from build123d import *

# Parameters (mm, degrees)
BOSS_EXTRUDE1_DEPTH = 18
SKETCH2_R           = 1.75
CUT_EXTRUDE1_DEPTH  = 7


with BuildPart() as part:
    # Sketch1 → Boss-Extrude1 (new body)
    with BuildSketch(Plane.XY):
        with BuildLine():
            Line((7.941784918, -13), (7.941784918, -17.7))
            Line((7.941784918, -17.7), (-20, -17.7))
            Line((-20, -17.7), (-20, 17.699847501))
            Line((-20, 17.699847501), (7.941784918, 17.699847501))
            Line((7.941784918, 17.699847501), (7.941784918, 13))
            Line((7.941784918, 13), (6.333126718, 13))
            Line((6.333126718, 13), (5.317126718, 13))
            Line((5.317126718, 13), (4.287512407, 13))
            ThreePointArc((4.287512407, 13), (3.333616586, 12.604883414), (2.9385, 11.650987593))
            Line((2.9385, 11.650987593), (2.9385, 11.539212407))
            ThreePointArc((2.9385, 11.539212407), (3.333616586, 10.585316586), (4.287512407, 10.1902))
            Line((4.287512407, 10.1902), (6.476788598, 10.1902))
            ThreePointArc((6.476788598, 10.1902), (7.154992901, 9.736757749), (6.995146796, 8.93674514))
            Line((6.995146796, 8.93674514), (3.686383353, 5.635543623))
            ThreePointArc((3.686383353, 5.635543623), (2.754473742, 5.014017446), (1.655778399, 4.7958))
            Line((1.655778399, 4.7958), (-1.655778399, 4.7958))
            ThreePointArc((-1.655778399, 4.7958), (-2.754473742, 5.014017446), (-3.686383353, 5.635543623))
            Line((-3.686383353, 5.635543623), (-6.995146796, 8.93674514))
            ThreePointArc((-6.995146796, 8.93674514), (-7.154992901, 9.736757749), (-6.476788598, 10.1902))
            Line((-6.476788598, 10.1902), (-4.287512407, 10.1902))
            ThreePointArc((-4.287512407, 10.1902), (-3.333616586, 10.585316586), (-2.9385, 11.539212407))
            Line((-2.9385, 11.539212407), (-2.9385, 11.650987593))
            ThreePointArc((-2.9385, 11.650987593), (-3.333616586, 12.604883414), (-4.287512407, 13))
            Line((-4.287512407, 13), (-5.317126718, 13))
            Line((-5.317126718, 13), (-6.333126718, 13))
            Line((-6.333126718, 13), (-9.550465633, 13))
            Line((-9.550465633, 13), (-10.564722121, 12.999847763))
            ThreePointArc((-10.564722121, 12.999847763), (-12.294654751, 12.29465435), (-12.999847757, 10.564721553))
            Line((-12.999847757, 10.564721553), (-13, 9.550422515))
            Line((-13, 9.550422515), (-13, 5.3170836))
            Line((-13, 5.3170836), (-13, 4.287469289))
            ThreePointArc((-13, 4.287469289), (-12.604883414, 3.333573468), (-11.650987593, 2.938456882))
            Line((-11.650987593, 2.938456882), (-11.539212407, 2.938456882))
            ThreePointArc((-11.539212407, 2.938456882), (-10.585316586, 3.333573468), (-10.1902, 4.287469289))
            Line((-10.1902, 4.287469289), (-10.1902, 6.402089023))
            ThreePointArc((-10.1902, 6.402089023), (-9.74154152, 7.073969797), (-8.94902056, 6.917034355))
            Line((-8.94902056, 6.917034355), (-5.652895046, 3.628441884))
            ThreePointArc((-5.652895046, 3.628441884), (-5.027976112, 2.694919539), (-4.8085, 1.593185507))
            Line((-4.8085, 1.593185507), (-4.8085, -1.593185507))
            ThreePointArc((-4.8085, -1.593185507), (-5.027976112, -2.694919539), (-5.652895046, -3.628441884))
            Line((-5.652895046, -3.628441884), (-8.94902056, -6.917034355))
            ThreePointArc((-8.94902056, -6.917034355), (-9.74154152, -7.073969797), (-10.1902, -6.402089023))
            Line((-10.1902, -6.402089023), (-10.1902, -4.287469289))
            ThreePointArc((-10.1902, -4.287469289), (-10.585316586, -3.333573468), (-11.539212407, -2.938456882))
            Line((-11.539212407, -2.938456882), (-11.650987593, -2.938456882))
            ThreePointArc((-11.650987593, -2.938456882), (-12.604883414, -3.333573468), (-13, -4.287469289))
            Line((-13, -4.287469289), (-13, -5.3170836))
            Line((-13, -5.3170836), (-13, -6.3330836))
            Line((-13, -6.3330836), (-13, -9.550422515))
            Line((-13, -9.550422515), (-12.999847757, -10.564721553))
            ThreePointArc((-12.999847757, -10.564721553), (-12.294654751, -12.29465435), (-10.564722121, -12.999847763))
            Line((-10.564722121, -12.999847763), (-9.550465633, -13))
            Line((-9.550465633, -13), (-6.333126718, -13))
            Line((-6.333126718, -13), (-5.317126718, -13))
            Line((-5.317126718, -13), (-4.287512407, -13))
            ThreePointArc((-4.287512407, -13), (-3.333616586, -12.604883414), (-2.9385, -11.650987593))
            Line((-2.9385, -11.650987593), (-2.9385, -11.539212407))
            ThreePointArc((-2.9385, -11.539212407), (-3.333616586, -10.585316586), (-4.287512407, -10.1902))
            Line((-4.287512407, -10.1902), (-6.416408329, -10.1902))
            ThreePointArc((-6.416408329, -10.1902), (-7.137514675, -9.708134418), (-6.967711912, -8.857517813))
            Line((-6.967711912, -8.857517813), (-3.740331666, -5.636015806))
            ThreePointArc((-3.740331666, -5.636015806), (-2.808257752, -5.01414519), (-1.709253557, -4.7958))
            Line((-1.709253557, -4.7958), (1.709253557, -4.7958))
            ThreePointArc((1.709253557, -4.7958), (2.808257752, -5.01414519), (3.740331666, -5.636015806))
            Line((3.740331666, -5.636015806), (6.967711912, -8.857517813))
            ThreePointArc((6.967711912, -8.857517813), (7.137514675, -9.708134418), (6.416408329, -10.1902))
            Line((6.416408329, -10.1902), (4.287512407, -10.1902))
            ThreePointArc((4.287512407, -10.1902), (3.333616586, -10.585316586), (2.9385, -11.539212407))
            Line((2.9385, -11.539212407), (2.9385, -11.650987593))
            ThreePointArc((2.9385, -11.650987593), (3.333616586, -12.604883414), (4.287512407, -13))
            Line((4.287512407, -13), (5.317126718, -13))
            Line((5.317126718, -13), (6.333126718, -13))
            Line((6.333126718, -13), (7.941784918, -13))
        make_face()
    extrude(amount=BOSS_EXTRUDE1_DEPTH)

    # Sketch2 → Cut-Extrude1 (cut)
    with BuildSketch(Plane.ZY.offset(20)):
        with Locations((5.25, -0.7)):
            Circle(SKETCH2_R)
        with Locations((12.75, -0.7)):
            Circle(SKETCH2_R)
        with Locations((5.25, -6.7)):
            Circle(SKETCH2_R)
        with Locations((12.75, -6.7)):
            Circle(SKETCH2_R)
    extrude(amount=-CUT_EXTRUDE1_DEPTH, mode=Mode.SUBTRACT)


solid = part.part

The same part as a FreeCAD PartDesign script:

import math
import FreeCAD as App
import Part
import Sketcher

V = App.Vector
Q = App.Units.Quantity

doc = App.newDocument("Part")
params = doc.addObject("Spreadsheet::Sheet", "Params")
for row, (alias, value) in enumerate([
    ("sketch1_height", "4.7 mm"),
    ("pad1_length", "18 mm"),
    ("sketch2_diameter", "3.5 mm"),
    ("pocket1_length", "7 mm"),
], start=1):
    params.set(f"A{row}", alias)
    params.set(f"B{row}", "=" + value)
    params.setAlias(f"B{row}", alias)

body = doc.addObject("PartDesign::Body", "Body")

sketch1 = body.newObject("Sketcher::SketchObject", "Sketch")
sketch1.AttachmentSupport = (doc.getObject("XY_Plane"), [""])
sketch1.MapMode = "FlatFace"
sketch1.addGeometry([
    Part.LineSegment(V(7.941785, -17.7, 0), V(7.941785, -13, 0)),
    Part.LineSegment(V(7.941785, -13, 0), V(4.287512, -13, 0)),
    Part.ArcOfCircle(Part.Circle(V(4.287512, -11.650988, 0), V(0, 0, 1), 1.349012), math.radians(180), math.radians(270)),
    Part.LineSegment(V(2.9385, -11.650988, 0), V(2.9385, -11.539212, 0)),
    Part.ArcOfCircle(Part.Circle(V(4.287512, -11.539212, 0), V(0, 0, 1), 1.349012), math.radians(90), math.radians(180)),
    Part.LineSegment(V(4.287512, -10.1902, 0), V(6.416408, -10.1902, 0)),
    Part.ArcOfCircle(Part.Circle(V(6.416408, -9.409827, 0), V(0, 0, 1), 0.780373), math.radians(-90), math.radians(45.052226)),
    Part.LineSegment(V(6.967712, -8.857518, 0), V(3.740332, -5.636016, 0)),
    Part.ArcOfCircle(Part.Circle(V(1.709254, -7.6708, 0), V(0, 0, 1), 2.875), math.radians(45.052226), math.radians(90)),
    Part.LineSegment(V(1.709254, -4.7958, 0), V(-1.709254, -4.7958, 0)),
    Part.ArcOfCircle(Part.Circle(V(-1.709254, -7.6708, 0), V(0, 0, 1), 2.875), math.radians(90), math.radians(134.947774)),
    Part.LineSegment(V(-3.740332, -5.636016, 0), V(-6.967712, -8.857518, 0)),
    Part.ArcOfCircle(Part.Circle(V(-6.416408, -9.409827, 0), V(0, 0, 1), 0.780373), math.radians(134.947774), math.radians(270)),
    Part.LineSegment(V(-6.416408, -10.1902, 0), V(-4.287512, -10.1902, 0)),
    Part.ArcOfCircle(Part.Circle(V(-4.287512, -11.539212, 0), V(0, 0, 1), 1.349012), math.radians(0), math.radians(90)),
    Part.LineSegment(V(-2.9385, -11.539212, 0), V(-2.9385, -11.650988, 0)),
    Part.ArcOfCircle(Part.Circle(V(-4.287512, -11.650988, 0), V(0, 0, 1), 1.349012), math.radians(-90), math.radians(0)),
    Part.LineSegment(V(-4.287512, -13, 0), V(-9.550466, -13, 0)),
    Part.LineSegment(V(-9.550466, -13, 0), V(-10.564722, -12.999848, 0)),
    Part.ArcOfCircle(Part.Circle(V(-10.5918, -10.5918, 0), V(0, 0, 1), 2.4082), math.radians(179.355737), math.radians(270.644249)),
    Part.LineSegment(V(-12.999848, -10.564722, 0), V(-13, -9.550423, 0)),
    Part.LineSegment(V(-13, -9.550423, 0), V(-13, -4.287469, 0)),
    Part.ArcOfCircle(Part.Circle(V(-11.650988, -4.287469, 0), V(0, 0, 1), 1.349012), math.radians(90), math.radians(180)),
    Part.LineSegment(V(-11.650988, -2.938457, 0), V(-11.539212, -2.938457, 0)),
    Part.ArcOfCircle(Part.Circle(V(-11.539212, -4.287469, 0), V(0, 0, 1), 1.349012), math.radians(0), math.radians(90)),
    Part.LineSegment(V(-10.1902, -4.287469, 0), V(-10.1902, -6.402089, 0)),
    Part.ArcOfCircle(Part.Circle(V(-9.462789, -6.402089, 0), V(0, 0, 1), 0.727411), math.radians(180), math.radians(314.934453)),
    Part.LineSegment(V(-8.949021, -6.917034, 0), V(-5.652895, -3.628442, 0)),
    Part.ArcOfCircle(Part.Circle(V(-7.6835, -1.593186, 0), V(0, 0, 1), 2.875), math.radians(-45.065547), math.radians(0)),
    Part.LineSegment(V(-4.8085, -1.593186, 0), V(-4.8085, 1.593186, 0)),
    Part.ArcOfCircle(Part.Circle(V(-7.6835, 1.593186, 0), V(0, 0, 1), 2.875), math.radians(0), math.radians(45.065547)),
    Part.LineSegment(V(-5.652895, 3.628442, 0), V(-8.949021, 6.917034, 0)),
    Part.ArcOfCircle(Part.Circle(V(-9.462789, 6.402089, 0), V(0, 0, 1), 0.727411), math.radians(45.065547), math.radians(180)),
    Part.LineSegment(V(-10.1902, 6.402089, 0), V(-10.1902, 4.287469, 0)),
    Part.ArcOfCircle(Part.Circle(V(-11.539212, 4.287469, 0), V(0, 0, 1), 1.349012), math.radians(-90), math.radians(0)),
    Part.LineSegment(V(-11.539212, 2.938457, 0), V(-11.650988, 2.938457, 0)),
    Part.ArcOfCircle(Part.Circle(V(-11.650988, 4.287469, 0), V(0, 0, 1), 1.349012), math.radians(180), math.radians(270)),
    Part.LineSegment(V(-13, 4.287469, 0), V(-13, 9.550423, 0)),
    Part.LineSegment(V(-13, 9.550423, 0), V(-12.999848, 10.564722, 0)),
    Part.ArcOfCircle(Part.Circle(V(-10.5918, 10.5918, 0), V(0, 0, 1), 2.4082), math.radians(89.355751), math.radians(180.644263)),
    Part.LineSegment(V(-10.564722, 12.999848, 0), V(-9.550466, 13, 0)),
    Part.LineSegment(V(-9.550466, 13, 0), V(-4.287512, 13, 0)),
    Part.ArcOfCircle(Part.Circle(V(-4.287512, 11.650988, 0), V(0, 0, 1), 1.349012), math.radians(0), math.radians(90)),
    Part.LineSegment(V(-2.9385, 11.650988, 0), V(-2.9385, 11.539212, 0)),
    Part.ArcOfCircle(Part.Circle(V(-4.287512, 11.539212, 0), V(0, 0, 1), 1.349012), math.radians(-90), math.radians(0)),
    Part.LineSegment(V(-4.287512, 10.1902, 0), V(-6.476789, 10.1902, 0)),
    Part.ArcOfCircle(Part.Circle(V(-6.476789, 9.456291, 0), V(0, 0, 1), 0.733909), math.radians(90), math.radians(225.065547)),
    Part.LineSegment(V(-6.995147, 8.936745, 0), V(-3.686383, 5.635544, 0)),
    Part.ArcOfCircle(Part.Circle(V(-1.655778, 7.6708, 0), V(0, 0, 1), 2.875), math.radians(-134.934452), math.radians(-90)),
    Part.LineSegment(V(-1.655778, 4.7958, 0), V(1.655778, 4.7958, 0)),
    Part.ArcOfCircle(Part.Circle(V(1.655778, 7.6708, 0), V(0, 0, 1), 2.875), math.radians(-90), math.radians(-45.065548)),
    Part.LineSegment(V(3.686383, 5.635544, 0), V(6.995147, 8.936745, 0)),
    Part.ArcOfCircle(Part.Circle(V(6.476789, 9.456291, 0), V(0, 0, 1), 0.733909), math.radians(-45.065547), math.radians(90)),
    Part.LineSegment(V(6.476789, 10.1902, 0), V(4.287512, 10.1902, 0)),
    Part.ArcOfCircle(Part.Circle(V(4.287512, 11.539212, 0), V(0, 0, 1), 1.349012), math.radians(180), math.radians(270)),
    Part.LineSegment(V(2.9385, 11.539212, 0), V(2.9385, 11.650988, 0)),
    Part.ArcOfCircle(Part.Circle(V(4.287512, 11.650988, 0), V(0, 0, 1), 1.349012), math.radians(90), math.radians(180)),
    Part.LineSegment(V(4.287512, 13, 0), V(7.941785, 13, 0)),
    Part.LineSegment(V(7.941785, 13, 0), V(7.941785, 17.699848, 0)),
    Part.LineSegment(V(7.941785, 17.699848, 0), V(-20, 17.699848, 0)),
    Part.LineSegment(V(-20, 17.699848, 0), V(-20, -17.7, 0)),
    Part.LineSegment(V(-20, -17.7, 0), V(7.941785, -17.7, 0)),
], False)
sketch1.addConstraint([
    Sketcher.Constraint("Coincident", 0, 2, 1, 1),
    Sketcher.Constraint("Tangent", 1, 2, 2, 2),
    Sketcher.Constraint("Tangent", 2, 1, 3, 1),
    Sketcher.Constraint("Tangent", 3, 2, 4, 2),
    Sketcher.Constraint("Tangent", 4, 1, 5, 1),
    Sketcher.Constraint("Tangent", 5, 2, 6, 1),
    Sketcher.Constraint("Tangent", 6, 2, 7, 1),
    Sketcher.Constraint("Tangent", 7, 2, 8, 1),
    Sketcher.Constraint("Tangent", 8, 2, 9, 1),
    Sketcher.Constraint("Tangent", 9, 2, 10, 1),
    Sketcher.Constraint("Tangent", 10, 2, 11, 1),
    Sketcher.Constraint("Tangent", 11, 2, 12, 1),
    Sketcher.Constraint("Tangent", 12, 2, 13, 1),
    Sketcher.Constraint("Tangent", 13, 2, 14, 2),
    Sketcher.Constraint("Tangent", 14, 1, 15, 1),
    Sketcher.Constraint("Tangent", 15, 2, 16, 2),
    Sketcher.Constraint("Tangent", 16, 1, 17, 1),
    Sketcher.Constraint("Coincident", 17, 2, 18, 1),
    Sketcher.Constraint("Coincident", 18, 2, 19, 2),
    Sketcher.Constraint("Coincident", 19, 1, 20, 1),
    Sketcher.Constraint("Coincident", 20, 2, 21, 1),
    Sketcher.Constraint("Tangent", 21, 2, 22, 2),
    Sketcher.Constraint("Tangent", 22, 1, 23, 1),
    Sketcher.Constraint("Tangent", 23, 2, 24, 2),
    Sketcher.Constraint("Tangent", 24, 1, 25, 1),
    Sketcher.Constraint("Tangent", 25, 2, 26, 1),
    Sketcher.Constraint("Tangent", 26, 2, 27, 1),
    Sketcher.Constraint("Tangent", 27, 2, 28, 1),
    Sketcher.Constraint("Tangent", 28, 2, 29, 1),
    Sketcher.Constraint("Tangent", 29, 2, 30, 1),
    Sketcher.Constraint("Tangent", 30, 2, 31, 1),
    Sketcher.Constraint("Tangent", 31, 2, 32, 1),
    Sketcher.Constraint("Tangent", 32, 2, 33, 1),
    Sketcher.Constraint("Tangent", 33, 2, 34, 2),
    Sketcher.Constraint("Tangent", 34, 1, 35, 1),
    Sketcher.Constraint("Tangent", 35, 2, 36, 2),
    Sketcher.Constraint("Tangent", 36, 1, 37, 1),
    Sketcher.Constraint("Coincident", 37, 2, 38, 1),
    Sketcher.Constraint("Coincident", 38, 2, 39, 2),
    Sketcher.Constraint("Coincident", 39, 1, 40, 1),
    Sketcher.Constraint("Coincident", 40, 2, 41, 1),
    Sketcher.Constraint("Tangent", 41, 2, 42, 2),
    Sketcher.Constraint("Tangent", 42, 1, 43, 1),
    Sketcher.Constraint("Tangent", 43, 2, 44, 2),
    Sketcher.Constraint("Tangent", 44, 1, 45, 1),
    Sketcher.Constraint("Tangent", 45, 2, 46, 1),
    Sketcher.Constraint("Tangent", 46, 2, 47, 1),
    Sketcher.Constraint("Tangent", 47, 2, 48, 1),
    Sketcher.Constraint("Tangent", 48, 2, 49, 1),
    Sketcher.Constraint("Tangent", 49, 2, 50, 1),
    Sketcher.Constraint("Tangent", 50, 2, 51, 1),
    Sketcher.Constraint("Tangent", 51, 2, 52, 1),
    Sketcher.Constraint("Tangent", 52, 2, 53, 1),
    Sketcher.Constraint("Tangent", 53, 2, 54, 2),
    Sketcher.Constraint("Tangent", 54, 1, 55, 1),
    Sketcher.Constraint("Tangent", 55, 2, 56, 2),
    Sketcher.Constraint("Tangent", 56, 1, 57, 1),
    Sketcher.Constraint("Coincident", 57, 2, 58, 1),
    Sketcher.Constraint("Coincident", 58, 2, 59, 1),
    Sketcher.Constraint("Coincident", 59, 2, 60, 1),
    Sketcher.Constraint("Coincident", 60, 2, 61, 1),
    Sketcher.Constraint("Coincident", 61, 2, 0, 1),
    Sketcher.Constraint("Vertical", 0),
    Sketcher.Constraint("Horizontal", 1),
    Sketcher.Constraint("Vertical", 3),
    Sketcher.Constraint("Horizontal", 5),
    Sketcher.Constraint("Horizontal", 9),
    Sketcher.Constraint("Horizontal", 13),
    Sketcher.Constraint("Vertical", 15),
    Sketcher.Constraint("Horizontal", 17),
    Sketcher.Constraint("Vertical", 21),
    Sketcher.Constraint("Horizontal", 23),
    Sketcher.Constraint("Vertical", 25),
    Sketcher.Constraint("Vertical", 29),
    Sketcher.Constraint("Vertical", 33),
    Sketcher.Constraint("Horizontal", 35),
    Sketcher.Constraint("Vertical", 37),
    Sketcher.Constraint("Horizontal", 41),
    Sketcher.Constraint("Vertical", 43),
    Sketcher.Constraint("Horizontal", 45),
    Sketcher.Constraint("Horizontal", 49),
    Sketcher.Constraint("Horizontal", 53),
    Sketcher.Constraint("Vertical", 55),
    Sketcher.Constraint("Horizontal", 57),
    Sketcher.Constraint("Vertical", 58),
    Sketcher.Constraint("Horizontal", 59),
    Sketcher.Constraint("Vertical", 60),
    Sketcher.Constraint("Horizontal", 61),
    Sketcher.Constraint("Equal", 2, 4),
    Sketcher.Constraint("Equal", 8, 10),
    Sketcher.Constraint("Equal", 6, 12),
    Sketcher.Constraint("Equal", 4, 14),
    Sketcher.Constraint("Equal", 14, 16),
    Sketcher.Constraint("Equal", 16, 22),
    Sketcher.Constraint("Equal", 22, 24),
    Sketcher.Constraint("Equal", 10, 28),
    Sketcher.Constraint("Equal", 28, 30),
    Sketcher.Constraint("Equal", 26, 32),
    Sketcher.Constraint("Equal", 24, 34),
    Sketcher.Constraint("Equal", 34, 36),
    Sketcher.Constraint("Equal", 19, 39),
    Sketcher.Constraint("Equal", 36, 42),
    Sketcher.Constraint("Equal", 42, 44),
    Sketcher.Constraint("Equal", 30, 48),
    Sketcher.Constraint("Equal", 48, 50),
    Sketcher.Constraint("Equal", 46, 52),
    Sketcher.Constraint("Equal", 44, 54),
    Sketcher.Constraint("Equal", 54, 56),
    Sketcher.Constraint("Symmetric", 2, 3, 42, 3, -1, 1),
    Sketcher.Constraint("Symmetric", 14, 3, 54, 3, -1, 1),
    Sketcher.Constraint("Symmetric", 6, 3, 12, 3, -2),
    Sketcher.Constraint("Symmetric", 2, 3, 16, 3, -2),
    Sketcher.Constraint("Symmetric", 46, 3, 52, 3, -2),
    Sketcher.Constraint("Symmetric", 26, 3, 32, 3, -1),
    Sketcher.Constraint("Symmetric", 22, 3, 36, 3, -1),
    Sketcher.Constraint("Symmetric", 19, 3, 39, 3, -1),
    Sketcher.Constraint("Symmetric", 0, 2, 57, 2, -1),
    Sketcher.Constraint("Perpendicular", 18, 38),
    Sketcher.Constraint("Perpendicular", 20, 40),
    Sketcher.Constraint("Parallel", 31, 47),
    Sketcher.Constraint("Parallel", 27, 51),
    Sketcher.Constraint("Horizontal", 7, 2, 10, 2),
    Sketcher.Constraint("Horizontal", 47, 2, 50, 2),
    Sketcher.Constraint("Vertical", 19, 1, 38, 2),
    Sketcher.Constraint("Vertical", 18, 2, 39, 1),
    Sketcher.Constraint("Vertical", 17, 2, 40, 2),
    Sketcher.Constraint("Equal", 35, 3),
    Sketcher.Constraint("Equal", 41, 21),
    Sketcher.Constraint("DistanceY", 0, 1, 0, 2, Q("4.7 mm")),
    Sketcher.Constraint("DistanceY", 0, 2, -1, 1, Q("13 mm")),
    Sketcher.Constraint("DistanceX", 20, 2, -1, 1, Q("13 mm")),
    Sketcher.Constraint("DistanceX", 59, 2, -1, 1, Q("20 mm")),
    Sketcher.Constraint("Radius", 8, Q("2.875 mm")),
    Sketcher.Constraint("Radius", 19, Q("2.4082 mm")),
    Sketcher.Constraint("Radius", 26, Q("0.727411 mm")),
    Sketcher.Constraint("Radius", 46, Q("0.733909 mm")),
    Sketcher.Constraint("Radius", 2, Q("1.349012 mm")),
    Sketcher.Constraint("Radius", 6, Q("0.780373 mm")),
    Sketcher.Constraint("Distance", 20, Q("1.014299 mm")),
    Sketcher.Constraint("Distance", 27, Q("4.656102 mm")),
    Sketcher.Constraint("DistanceY", 25, 2, 25, 1, Q("2.11462 mm")),
    Sketcher.Constraint("DistanceY", 29, 1, 29, 2, Q("3.186371 mm")),
    Sketcher.Constraint("DistanceY", 8, 3, -1, 1, Q("7.6708 mm")),
    Sketcher.Constraint("DistanceX", 19, 3, -1, 1, Q("10.5918 mm")),
    Sketcher.Constraint("DistanceY", 19, 3, -1, 1, Q("10.5918 mm")),
    Sketcher.Constraint("DistanceX", 28, 3, -1, 1, Q("7.6835 mm")),
    Sketcher.Constraint("DistanceY", -1, 1, 48, 3, Q("7.6708 mm")),
    Sketcher.Constraint("DistanceX", -1, 1, 2, 1, Q("2.9385 mm")),
    Sketcher.Constraint("DistanceY", 4, 1, -1, 1, Q("10.1902 mm")),
    Sketcher.Constraint("Distance", 7, Q("4.56005 mm")),
    Sketcher.Constraint("DistanceX", 1, 2, 1, 1, Q("3.654273 mm")),
    Sketcher.Constraint("DistanceX", 5, 1, 5, 2, Q("2.128896 mm")),
    Sketcher.Constraint("DistanceX", 17, 2, 17, 1, Q("5.262953 mm")),
    Sketcher.Constraint("DistanceX", 45, 2, 45, 1, Q("2.189276 mm")),
    Sketcher.Constraint("DistanceY", 58, 1, 58, 2, Q("4.699848 mm")),
])
sketch1.setExpression("Constraints[128]", "Params.sketch1_height")
pad1 = body.newObject("PartDesign::Pad", "Pad")
pad1.Profile = sketch1
pad1.setExpression("Length", "Params.pad1_length")

sketch2 = body.newObject("Sketcher::SketchObject", "Sketch001")
sketch2.AttachmentSupport = (doc.getObject("YZ_Plane"), [""])
sketch2.MapMode = "FlatFace"
sketch2.AttachmentOffset = App.Placement(V(0, 0, -20), App.Rotation())
sketch2.addGeometry([
    Part.Circle(V(-0.7, 5.25, 0), V(0, 0, 1), 1.75),
    Part.Circle(V(-0.7, 12.75, 0), V(0, 0, 1), 1.75),
    Part.Circle(V(-6.7, 5.25, 0), V(0, 0, 1), 1.75),
    Part.Circle(V(-6.7, 12.75, 0), V(0, 0, 1), 1.75),
], False)
sketch2.addConstraint([
    Sketcher.Constraint("Equal", 0, 1),
    Sketcher.Constraint("Equal", 1, 2),
    Sketcher.Constraint("Equal", 2, 3),
    Sketcher.Constraint("Horizontal", 0, 3, 2, 3),
    Sketcher.Constraint("Horizontal", 1, 3, 3, 3),
    Sketcher.Constraint("Vertical", 0, 3, 1, 3),
    Sketcher.Constraint("Vertical", 2, 3, 3, 3),
    Sketcher.Constraint("Diameter", 0, Q("3.5 mm")),
    Sketcher.Constraint("DistanceX", 2, 3, 0, 3, Q("6 mm")),
    Sketcher.Constraint("DistanceX", 0, 3, -1, 1, Q("0.7 mm")),
    Sketcher.Constraint("DistanceY", 0, 3, 1, 3, Q("7.5 mm")),
    Sketcher.Constraint("DistanceY", -1, 1, 0, 3, Q("5.25 mm")),
])
sketch2.setExpression("Constraints[7]", "Params.sketch2_diameter")
pocket1 = body.newObject("PartDesign::Pocket", "Pocket")
pocket1.Profile = sketch2
pocket1.setExpression("Length", "Params.pocket1_length")
pocket1.Reversed = True

doc.recompute()
